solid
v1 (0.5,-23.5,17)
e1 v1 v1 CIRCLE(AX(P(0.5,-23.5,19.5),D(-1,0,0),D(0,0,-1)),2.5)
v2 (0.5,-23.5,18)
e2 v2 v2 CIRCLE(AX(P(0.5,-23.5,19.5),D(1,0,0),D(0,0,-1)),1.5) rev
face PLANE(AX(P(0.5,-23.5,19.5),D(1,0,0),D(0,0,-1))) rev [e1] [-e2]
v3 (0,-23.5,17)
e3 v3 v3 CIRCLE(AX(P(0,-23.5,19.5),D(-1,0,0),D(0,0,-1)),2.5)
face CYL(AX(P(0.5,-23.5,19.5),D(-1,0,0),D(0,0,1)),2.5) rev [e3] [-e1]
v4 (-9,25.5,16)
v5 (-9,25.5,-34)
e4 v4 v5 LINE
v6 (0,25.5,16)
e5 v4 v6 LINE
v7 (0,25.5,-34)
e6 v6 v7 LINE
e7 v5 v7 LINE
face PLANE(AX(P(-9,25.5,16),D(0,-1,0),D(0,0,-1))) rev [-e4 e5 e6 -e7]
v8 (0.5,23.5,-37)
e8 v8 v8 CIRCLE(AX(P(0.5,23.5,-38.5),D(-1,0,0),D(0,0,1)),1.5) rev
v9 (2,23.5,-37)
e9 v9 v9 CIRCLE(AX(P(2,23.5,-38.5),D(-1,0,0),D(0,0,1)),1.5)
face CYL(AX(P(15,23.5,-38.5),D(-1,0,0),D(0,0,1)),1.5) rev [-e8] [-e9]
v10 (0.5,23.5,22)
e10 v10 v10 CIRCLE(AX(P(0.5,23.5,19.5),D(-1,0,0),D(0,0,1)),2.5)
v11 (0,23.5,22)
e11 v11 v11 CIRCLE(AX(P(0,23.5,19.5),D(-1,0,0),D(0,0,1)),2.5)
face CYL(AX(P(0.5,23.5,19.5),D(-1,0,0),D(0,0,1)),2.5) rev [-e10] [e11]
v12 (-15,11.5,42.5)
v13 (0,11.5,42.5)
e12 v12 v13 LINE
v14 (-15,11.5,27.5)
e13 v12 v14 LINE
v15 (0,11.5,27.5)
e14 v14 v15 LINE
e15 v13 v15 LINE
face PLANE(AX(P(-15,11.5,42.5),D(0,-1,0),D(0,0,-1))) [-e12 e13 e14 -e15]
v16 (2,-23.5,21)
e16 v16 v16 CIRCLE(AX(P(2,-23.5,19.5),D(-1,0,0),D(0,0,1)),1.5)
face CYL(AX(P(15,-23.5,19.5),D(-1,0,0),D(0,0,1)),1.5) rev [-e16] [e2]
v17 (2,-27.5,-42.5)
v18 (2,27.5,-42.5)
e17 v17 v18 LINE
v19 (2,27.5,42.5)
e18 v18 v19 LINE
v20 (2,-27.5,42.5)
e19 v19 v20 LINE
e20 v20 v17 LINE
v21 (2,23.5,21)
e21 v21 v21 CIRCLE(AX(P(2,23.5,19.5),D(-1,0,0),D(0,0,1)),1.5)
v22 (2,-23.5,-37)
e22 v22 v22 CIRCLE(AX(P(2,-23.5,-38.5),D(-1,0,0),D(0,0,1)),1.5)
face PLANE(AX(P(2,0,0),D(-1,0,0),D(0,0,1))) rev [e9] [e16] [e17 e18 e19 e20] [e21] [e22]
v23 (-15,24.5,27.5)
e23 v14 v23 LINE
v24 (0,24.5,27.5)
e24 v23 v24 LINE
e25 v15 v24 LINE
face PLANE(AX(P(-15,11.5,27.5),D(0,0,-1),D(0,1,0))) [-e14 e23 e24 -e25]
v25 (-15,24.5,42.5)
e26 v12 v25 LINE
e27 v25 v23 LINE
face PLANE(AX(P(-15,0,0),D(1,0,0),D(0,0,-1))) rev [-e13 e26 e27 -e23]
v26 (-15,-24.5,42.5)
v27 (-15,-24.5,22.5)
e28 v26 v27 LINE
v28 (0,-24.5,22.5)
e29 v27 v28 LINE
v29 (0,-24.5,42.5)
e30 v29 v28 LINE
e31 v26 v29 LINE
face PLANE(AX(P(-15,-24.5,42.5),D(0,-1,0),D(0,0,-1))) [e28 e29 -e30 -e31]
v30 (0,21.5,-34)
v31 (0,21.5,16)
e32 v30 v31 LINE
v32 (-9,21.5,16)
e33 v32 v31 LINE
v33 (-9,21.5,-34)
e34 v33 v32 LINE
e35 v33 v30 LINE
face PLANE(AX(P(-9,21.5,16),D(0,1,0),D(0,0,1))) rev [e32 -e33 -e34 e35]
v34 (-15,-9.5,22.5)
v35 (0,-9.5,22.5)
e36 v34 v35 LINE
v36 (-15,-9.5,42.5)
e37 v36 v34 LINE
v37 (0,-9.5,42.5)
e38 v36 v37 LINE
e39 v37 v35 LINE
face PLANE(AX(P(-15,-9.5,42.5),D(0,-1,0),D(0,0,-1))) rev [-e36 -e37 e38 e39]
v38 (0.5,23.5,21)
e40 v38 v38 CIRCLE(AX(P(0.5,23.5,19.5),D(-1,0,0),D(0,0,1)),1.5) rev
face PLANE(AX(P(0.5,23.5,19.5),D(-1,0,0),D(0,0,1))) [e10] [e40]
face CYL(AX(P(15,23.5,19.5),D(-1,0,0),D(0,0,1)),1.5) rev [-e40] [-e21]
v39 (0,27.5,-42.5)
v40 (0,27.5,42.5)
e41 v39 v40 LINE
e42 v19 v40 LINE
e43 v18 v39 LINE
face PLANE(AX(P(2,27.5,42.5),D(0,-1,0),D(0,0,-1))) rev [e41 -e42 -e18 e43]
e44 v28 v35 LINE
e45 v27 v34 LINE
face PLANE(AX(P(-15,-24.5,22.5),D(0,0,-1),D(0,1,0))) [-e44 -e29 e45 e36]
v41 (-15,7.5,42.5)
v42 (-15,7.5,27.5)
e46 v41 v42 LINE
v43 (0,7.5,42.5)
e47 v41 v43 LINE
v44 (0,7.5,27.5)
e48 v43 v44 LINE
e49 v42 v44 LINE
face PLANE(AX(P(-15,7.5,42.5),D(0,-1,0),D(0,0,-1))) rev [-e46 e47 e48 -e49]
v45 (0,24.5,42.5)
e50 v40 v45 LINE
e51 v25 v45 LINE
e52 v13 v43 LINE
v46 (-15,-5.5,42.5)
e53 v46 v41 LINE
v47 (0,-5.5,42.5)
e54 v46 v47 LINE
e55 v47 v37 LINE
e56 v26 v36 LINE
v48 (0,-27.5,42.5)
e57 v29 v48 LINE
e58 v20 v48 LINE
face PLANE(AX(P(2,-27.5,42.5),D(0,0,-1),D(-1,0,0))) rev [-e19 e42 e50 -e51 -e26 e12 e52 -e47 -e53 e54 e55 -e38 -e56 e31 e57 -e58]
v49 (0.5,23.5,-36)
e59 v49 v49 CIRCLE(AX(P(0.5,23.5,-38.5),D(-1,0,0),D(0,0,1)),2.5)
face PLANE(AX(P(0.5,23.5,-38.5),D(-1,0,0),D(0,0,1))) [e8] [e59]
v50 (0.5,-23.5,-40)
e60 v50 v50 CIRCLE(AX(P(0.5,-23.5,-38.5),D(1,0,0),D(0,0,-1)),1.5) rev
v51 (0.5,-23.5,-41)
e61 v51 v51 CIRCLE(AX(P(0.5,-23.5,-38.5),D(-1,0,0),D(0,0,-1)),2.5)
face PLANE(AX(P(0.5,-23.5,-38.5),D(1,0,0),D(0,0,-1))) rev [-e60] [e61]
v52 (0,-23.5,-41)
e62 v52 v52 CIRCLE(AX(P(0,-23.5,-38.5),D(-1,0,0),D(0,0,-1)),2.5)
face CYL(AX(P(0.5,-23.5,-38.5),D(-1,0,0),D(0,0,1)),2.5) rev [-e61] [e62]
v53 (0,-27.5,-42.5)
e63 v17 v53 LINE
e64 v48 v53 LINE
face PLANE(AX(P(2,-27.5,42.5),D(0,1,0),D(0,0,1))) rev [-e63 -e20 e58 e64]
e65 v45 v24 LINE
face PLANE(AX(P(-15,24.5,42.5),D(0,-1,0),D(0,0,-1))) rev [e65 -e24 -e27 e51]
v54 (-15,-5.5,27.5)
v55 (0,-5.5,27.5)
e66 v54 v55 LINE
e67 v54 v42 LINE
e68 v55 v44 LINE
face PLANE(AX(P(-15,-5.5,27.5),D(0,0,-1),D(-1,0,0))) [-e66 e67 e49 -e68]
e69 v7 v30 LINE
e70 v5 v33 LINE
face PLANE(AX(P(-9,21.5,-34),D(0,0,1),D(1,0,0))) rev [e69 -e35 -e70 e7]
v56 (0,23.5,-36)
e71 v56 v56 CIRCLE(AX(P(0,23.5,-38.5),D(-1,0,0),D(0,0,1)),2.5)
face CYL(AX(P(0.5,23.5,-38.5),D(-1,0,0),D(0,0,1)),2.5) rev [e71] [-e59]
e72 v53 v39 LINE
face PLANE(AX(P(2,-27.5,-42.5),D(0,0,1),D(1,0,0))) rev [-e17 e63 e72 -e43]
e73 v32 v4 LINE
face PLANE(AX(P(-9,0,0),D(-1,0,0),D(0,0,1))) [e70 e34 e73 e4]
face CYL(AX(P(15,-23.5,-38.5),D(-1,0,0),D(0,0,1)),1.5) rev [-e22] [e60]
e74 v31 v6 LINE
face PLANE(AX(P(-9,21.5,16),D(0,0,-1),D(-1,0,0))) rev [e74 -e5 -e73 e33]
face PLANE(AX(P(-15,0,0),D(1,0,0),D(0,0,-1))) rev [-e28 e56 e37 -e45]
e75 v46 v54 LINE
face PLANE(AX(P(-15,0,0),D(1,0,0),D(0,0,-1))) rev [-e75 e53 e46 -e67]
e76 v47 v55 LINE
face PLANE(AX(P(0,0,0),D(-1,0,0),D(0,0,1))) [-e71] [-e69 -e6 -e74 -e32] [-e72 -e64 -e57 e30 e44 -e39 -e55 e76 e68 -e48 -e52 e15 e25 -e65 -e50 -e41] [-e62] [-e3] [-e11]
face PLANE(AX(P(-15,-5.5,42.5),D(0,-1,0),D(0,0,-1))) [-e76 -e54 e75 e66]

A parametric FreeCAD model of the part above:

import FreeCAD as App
import Part
import Sketcher
from FreeCAD import Vector


def add_polygon(sketch, points):
    """Adds a closed chain of lines whose ends are joined by coincident constraints."""
    first, n = sketch.GeometryCount, len(points)
    for a, b in zip(points, points[1:] + points[:1]):
        sketch.addGeometry(Part.LineSegment(App.Vector(*a, 0), App.Vector(*b, 0)), False)
    for i in range(n):
        sketch.addConstraint(Sketcher.Constraint("Coincident", first + i, 2, first + (i + 1) % n, 1))

doc = App.newDocument("Part")
body = doc.addObject("PartDesign::Body", "Body")

sketch1 = doc.addObject("Sketcher::SketchObject", "Sketch")
body.addObject(sketch1)
sketch1.AttachmentSupport = (doc.YZ_Plane, [""])
sketch1.MapMode = "FlatFace"
add_polygon(sketch1, [(28, 42), (-28, 42), (-28, -42), (28, -42)])
sketch1.addConstraint([
    Sketcher.Constraint("Horizontal", 0),
    Sketcher.Constraint("Vertical", 1),
    Sketcher.Constraint("Horizontal", 2),
    Sketcher.Constraint("Vertical", 3),
    Sketcher.Constraint("Symmetric", 0, 2, 2, 2, -1, 1),
    Sketcher.Constraint("DistanceX", 0, 2, 0, 1, 55.0),
    Sketcher.Constraint("DistanceY", 1, 2, 1, 1, 85.0),
])
pad1 = doc.addObject("PartDesign::Pad", "Pad")
body.addObject(pad1)
pad1.Profile = sketch1
pad1.Length = 2

sketch2 = doc.addObject("Sketcher::SketchObject", "Sketch001")
body.addObject(sketch2)
sketch2.AttachmentSupport = (doc.YZ_Plane, [""])
sketch2.MapMode = "FlatFace"
add_polygon(sketch2, [(-10, 22), (-24, 22), (-24, 42), (-10, 42)])
add_polygon(sketch2, [(8, 28), (-6, 28), (-6, 42), (8, 42)])
add_polygon(sketch2, [(24, 28), (12, 28), (12, 42), (24, 42)])
sketch2.addConstraint([
    Sketcher.Constraint("Horizontal", 0),
    Sketcher.Constraint("Vertical", 1),
    Sketcher.Constraint("Horizontal", 2),
    Sketcher.Constraint("Vertical", 3),
    Sketcher.Constraint("Horizontal", 4),
    Sketcher.Constraint("Vertical", 5),
    Sketcher.Constraint("Horizontal", 6),
    Sketcher.Constraint("Vertical", 7),
    Sketcher.Constraint("Horizontal", 8),
    Sketcher.Constraint("Vertical", 9),
    Sketcher.Constraint("Horizontal", 10),
    Sketcher.Constraint("Vertical", 11),
    Sketcher.Constraint("Symmetric", 1, 2, 10, 2, -2),
    Sketcher.Constraint("Horizontal", 2, 2, 5, 2),
    Sketcher.Constraint("Horizontal", 7, 2, 8, 2),
    Sketcher.Constraint("Equal", 6, 8),
    Sketcher.Constraint("Equal", 2, 5),
    Sketcher.Constraint("DistanceX", 0, 2, 0, 1, 15.0),
    Sketcher.Constraint("DistanceX", 4, 2, 4, 1, 13.0),
    Sketcher.Constraint("DistanceY", 1, 1, 1, 2, 20.0),
    Sketcher.Constraint("DistanceX", 3, 2, 4, 2, 4.0),
    Sketcher.Constraint("DistanceX", 7, 2, 8, 2, 4.0),
    Sketcher.Constraint("DistanceY", -1, 1, 0, 2, 22.5),
])
pad2 = doc.addObject("PartDesign::Pad", "Pad001")
body.addObject(pad2)
pad2.Profile = sketch2
pad2.Length = 15
pad2.Reversed = True

sketch3 = doc.addObject("Sketcher::SketchObject", "Sketch002")
body.addObject(sketch3)
sketch3.AttachmentSupport = (doc.YZ_Plane, [""])
sketch3.MapMode = "FlatFace"
sketch3.addGeometry([
    Part.Circle(Vector(23.5, -38.5, 0), Vector(0, 0, 1), 1.5),
    Part.Circle(Vector(23.5, 19.5, 0), Vector(0, 0, 1), 1.5),
    Part.Circle(Vector(-23.5, -38.5, 0), Vector(0, 0, 1), 1.5),
    Part.Circle(Vector(-23.5, 19.5, 0), Vector(0, 0, 1), 1.5),
], False)
sketch3.addConstraint([
    Sketcher.Constraint("Equal", 0, 1),
    Sketcher.Constraint("Equal", 1, 2),
    Sketcher.Constraint("Equal", 2, 3),
    Sketcher.Constraint("Symmetric", 0, 3, 2, 3, -2),
    Sketcher.Constraint("Symmetric", 1, 3, 3, 3, -2),
    Sketcher.Constraint("Vertical", 0, 3, 1, 3),
    Sketcher.Constraint("Diameter", 0, 3.0),
    Sketcher.Constraint("DistanceY", 0, 3, 1, 3, 58.0),
    Sketcher.Constraint("DistanceX", 2, 3, 0, 3, 47.0),
    Sketcher.Constraint("DistanceY", 0, 3, -1, 1, 38.5),
])
pocket1 = doc.addObject("PartDesign::Pocket", "Pocket")
body.addObject(pocket1)
pocket1.Profile = sketch3
pocket1.Length = 15
pocket1.Reversed = True

sketch4 = doc.addObject("Sketcher::SketchObject", "Sketch003")
body.addObject(sketch4)
sketch4.AttachmentSupport = (doc.YZ_Plane, [""])
sketch4.MapMode = "FlatFace"
sketch4.addGeometry([
    Part.Circle(Vector(23.5, 19.5, 0), Vector(0, 0, 1), 2.5),
    Part.Circle(Vector(23.5, -38.5, 0), Vector(0, 0, 1), 2.5),
    Part.Circle(Vector(-23.5, -38.5, 0), Vector(0, 0, 1), 2.5),
    Part.Circle(Vector(-23.5, 19.5, 0), Vector(0, 0, 1), 2.5),
], False)
sketch4.addConstraint([
    Sketcher.Constraint("Equal", 0, 1),
    Sketcher.Constraint("Equal", 1, 2),
    Sketcher.Constraint("Equal", 2, 3),
    Sketcher.Constraint("Symmetric", 1, 3, 2, 3, -2),
    Sketcher.Constraint("Symmetric", 0, 3, 3, 3, -2),
    Sketcher.Constraint("Vertical", 0, 3, 1, 3),
    Sketcher.Constraint("Diameter", 0, 5.0),
    Sketcher.Constraint("DistanceY", 1, 3, 0, 3, 58.0),
    Sketcher.Constraint("DistanceX", 2, 3, 1, 3, 47.0),
    Sketcher.Constraint("DistanceY", -1, 1, 0, 3, 19.5),
])
pocket2 = doc.addObject("PartDesign::Pocket", "Pocket001")
body.addObject(pocket2)
pocket2.Profile = sketch4
pocket2.Length = 0.5
pocket2.Reversed = True

sketch5 = doc.addObject("Sketcher::SketchObject", "Sketch004")
body.addObject(sketch5)
sketch5.AttachmentSupport = (doc.YZ_Plane, [""])
sketch5.MapMode = "FlatFace"
add_polygon(sketch5, [(25.5, -34), (21.5, -34), (21.5, 16), (25.5, 16)])
sketch5.addConstraint([
    Sketcher.Constraint("Horizontal", 0),
    Sketcher.Constraint("Vertical", 1),
    Sketcher.Constraint("Horizontal", 2),
    Sketcher.Constraint("Vertical", 3),
    Sketcher.Constraint("DistanceX", 0, 2, 0, 1, 4.0),
    Sketcher.Constraint("DistanceY", 1, 1, 1, 2, 50.0),
    Sketcher.Constraint("DistanceY", 0, 2, -1, 1, 34.0),
    Sketcher.Constraint("DistanceX", -1, 1, 0, 2, 21.5),
])
pad3 = doc.addObject("PartDesign::Pad", "Pad002")
body.addObject(pad3)
pad3.Profile = sketch5
pad3.Length = 9
pad3.Reversed = True

doc.recompute()
